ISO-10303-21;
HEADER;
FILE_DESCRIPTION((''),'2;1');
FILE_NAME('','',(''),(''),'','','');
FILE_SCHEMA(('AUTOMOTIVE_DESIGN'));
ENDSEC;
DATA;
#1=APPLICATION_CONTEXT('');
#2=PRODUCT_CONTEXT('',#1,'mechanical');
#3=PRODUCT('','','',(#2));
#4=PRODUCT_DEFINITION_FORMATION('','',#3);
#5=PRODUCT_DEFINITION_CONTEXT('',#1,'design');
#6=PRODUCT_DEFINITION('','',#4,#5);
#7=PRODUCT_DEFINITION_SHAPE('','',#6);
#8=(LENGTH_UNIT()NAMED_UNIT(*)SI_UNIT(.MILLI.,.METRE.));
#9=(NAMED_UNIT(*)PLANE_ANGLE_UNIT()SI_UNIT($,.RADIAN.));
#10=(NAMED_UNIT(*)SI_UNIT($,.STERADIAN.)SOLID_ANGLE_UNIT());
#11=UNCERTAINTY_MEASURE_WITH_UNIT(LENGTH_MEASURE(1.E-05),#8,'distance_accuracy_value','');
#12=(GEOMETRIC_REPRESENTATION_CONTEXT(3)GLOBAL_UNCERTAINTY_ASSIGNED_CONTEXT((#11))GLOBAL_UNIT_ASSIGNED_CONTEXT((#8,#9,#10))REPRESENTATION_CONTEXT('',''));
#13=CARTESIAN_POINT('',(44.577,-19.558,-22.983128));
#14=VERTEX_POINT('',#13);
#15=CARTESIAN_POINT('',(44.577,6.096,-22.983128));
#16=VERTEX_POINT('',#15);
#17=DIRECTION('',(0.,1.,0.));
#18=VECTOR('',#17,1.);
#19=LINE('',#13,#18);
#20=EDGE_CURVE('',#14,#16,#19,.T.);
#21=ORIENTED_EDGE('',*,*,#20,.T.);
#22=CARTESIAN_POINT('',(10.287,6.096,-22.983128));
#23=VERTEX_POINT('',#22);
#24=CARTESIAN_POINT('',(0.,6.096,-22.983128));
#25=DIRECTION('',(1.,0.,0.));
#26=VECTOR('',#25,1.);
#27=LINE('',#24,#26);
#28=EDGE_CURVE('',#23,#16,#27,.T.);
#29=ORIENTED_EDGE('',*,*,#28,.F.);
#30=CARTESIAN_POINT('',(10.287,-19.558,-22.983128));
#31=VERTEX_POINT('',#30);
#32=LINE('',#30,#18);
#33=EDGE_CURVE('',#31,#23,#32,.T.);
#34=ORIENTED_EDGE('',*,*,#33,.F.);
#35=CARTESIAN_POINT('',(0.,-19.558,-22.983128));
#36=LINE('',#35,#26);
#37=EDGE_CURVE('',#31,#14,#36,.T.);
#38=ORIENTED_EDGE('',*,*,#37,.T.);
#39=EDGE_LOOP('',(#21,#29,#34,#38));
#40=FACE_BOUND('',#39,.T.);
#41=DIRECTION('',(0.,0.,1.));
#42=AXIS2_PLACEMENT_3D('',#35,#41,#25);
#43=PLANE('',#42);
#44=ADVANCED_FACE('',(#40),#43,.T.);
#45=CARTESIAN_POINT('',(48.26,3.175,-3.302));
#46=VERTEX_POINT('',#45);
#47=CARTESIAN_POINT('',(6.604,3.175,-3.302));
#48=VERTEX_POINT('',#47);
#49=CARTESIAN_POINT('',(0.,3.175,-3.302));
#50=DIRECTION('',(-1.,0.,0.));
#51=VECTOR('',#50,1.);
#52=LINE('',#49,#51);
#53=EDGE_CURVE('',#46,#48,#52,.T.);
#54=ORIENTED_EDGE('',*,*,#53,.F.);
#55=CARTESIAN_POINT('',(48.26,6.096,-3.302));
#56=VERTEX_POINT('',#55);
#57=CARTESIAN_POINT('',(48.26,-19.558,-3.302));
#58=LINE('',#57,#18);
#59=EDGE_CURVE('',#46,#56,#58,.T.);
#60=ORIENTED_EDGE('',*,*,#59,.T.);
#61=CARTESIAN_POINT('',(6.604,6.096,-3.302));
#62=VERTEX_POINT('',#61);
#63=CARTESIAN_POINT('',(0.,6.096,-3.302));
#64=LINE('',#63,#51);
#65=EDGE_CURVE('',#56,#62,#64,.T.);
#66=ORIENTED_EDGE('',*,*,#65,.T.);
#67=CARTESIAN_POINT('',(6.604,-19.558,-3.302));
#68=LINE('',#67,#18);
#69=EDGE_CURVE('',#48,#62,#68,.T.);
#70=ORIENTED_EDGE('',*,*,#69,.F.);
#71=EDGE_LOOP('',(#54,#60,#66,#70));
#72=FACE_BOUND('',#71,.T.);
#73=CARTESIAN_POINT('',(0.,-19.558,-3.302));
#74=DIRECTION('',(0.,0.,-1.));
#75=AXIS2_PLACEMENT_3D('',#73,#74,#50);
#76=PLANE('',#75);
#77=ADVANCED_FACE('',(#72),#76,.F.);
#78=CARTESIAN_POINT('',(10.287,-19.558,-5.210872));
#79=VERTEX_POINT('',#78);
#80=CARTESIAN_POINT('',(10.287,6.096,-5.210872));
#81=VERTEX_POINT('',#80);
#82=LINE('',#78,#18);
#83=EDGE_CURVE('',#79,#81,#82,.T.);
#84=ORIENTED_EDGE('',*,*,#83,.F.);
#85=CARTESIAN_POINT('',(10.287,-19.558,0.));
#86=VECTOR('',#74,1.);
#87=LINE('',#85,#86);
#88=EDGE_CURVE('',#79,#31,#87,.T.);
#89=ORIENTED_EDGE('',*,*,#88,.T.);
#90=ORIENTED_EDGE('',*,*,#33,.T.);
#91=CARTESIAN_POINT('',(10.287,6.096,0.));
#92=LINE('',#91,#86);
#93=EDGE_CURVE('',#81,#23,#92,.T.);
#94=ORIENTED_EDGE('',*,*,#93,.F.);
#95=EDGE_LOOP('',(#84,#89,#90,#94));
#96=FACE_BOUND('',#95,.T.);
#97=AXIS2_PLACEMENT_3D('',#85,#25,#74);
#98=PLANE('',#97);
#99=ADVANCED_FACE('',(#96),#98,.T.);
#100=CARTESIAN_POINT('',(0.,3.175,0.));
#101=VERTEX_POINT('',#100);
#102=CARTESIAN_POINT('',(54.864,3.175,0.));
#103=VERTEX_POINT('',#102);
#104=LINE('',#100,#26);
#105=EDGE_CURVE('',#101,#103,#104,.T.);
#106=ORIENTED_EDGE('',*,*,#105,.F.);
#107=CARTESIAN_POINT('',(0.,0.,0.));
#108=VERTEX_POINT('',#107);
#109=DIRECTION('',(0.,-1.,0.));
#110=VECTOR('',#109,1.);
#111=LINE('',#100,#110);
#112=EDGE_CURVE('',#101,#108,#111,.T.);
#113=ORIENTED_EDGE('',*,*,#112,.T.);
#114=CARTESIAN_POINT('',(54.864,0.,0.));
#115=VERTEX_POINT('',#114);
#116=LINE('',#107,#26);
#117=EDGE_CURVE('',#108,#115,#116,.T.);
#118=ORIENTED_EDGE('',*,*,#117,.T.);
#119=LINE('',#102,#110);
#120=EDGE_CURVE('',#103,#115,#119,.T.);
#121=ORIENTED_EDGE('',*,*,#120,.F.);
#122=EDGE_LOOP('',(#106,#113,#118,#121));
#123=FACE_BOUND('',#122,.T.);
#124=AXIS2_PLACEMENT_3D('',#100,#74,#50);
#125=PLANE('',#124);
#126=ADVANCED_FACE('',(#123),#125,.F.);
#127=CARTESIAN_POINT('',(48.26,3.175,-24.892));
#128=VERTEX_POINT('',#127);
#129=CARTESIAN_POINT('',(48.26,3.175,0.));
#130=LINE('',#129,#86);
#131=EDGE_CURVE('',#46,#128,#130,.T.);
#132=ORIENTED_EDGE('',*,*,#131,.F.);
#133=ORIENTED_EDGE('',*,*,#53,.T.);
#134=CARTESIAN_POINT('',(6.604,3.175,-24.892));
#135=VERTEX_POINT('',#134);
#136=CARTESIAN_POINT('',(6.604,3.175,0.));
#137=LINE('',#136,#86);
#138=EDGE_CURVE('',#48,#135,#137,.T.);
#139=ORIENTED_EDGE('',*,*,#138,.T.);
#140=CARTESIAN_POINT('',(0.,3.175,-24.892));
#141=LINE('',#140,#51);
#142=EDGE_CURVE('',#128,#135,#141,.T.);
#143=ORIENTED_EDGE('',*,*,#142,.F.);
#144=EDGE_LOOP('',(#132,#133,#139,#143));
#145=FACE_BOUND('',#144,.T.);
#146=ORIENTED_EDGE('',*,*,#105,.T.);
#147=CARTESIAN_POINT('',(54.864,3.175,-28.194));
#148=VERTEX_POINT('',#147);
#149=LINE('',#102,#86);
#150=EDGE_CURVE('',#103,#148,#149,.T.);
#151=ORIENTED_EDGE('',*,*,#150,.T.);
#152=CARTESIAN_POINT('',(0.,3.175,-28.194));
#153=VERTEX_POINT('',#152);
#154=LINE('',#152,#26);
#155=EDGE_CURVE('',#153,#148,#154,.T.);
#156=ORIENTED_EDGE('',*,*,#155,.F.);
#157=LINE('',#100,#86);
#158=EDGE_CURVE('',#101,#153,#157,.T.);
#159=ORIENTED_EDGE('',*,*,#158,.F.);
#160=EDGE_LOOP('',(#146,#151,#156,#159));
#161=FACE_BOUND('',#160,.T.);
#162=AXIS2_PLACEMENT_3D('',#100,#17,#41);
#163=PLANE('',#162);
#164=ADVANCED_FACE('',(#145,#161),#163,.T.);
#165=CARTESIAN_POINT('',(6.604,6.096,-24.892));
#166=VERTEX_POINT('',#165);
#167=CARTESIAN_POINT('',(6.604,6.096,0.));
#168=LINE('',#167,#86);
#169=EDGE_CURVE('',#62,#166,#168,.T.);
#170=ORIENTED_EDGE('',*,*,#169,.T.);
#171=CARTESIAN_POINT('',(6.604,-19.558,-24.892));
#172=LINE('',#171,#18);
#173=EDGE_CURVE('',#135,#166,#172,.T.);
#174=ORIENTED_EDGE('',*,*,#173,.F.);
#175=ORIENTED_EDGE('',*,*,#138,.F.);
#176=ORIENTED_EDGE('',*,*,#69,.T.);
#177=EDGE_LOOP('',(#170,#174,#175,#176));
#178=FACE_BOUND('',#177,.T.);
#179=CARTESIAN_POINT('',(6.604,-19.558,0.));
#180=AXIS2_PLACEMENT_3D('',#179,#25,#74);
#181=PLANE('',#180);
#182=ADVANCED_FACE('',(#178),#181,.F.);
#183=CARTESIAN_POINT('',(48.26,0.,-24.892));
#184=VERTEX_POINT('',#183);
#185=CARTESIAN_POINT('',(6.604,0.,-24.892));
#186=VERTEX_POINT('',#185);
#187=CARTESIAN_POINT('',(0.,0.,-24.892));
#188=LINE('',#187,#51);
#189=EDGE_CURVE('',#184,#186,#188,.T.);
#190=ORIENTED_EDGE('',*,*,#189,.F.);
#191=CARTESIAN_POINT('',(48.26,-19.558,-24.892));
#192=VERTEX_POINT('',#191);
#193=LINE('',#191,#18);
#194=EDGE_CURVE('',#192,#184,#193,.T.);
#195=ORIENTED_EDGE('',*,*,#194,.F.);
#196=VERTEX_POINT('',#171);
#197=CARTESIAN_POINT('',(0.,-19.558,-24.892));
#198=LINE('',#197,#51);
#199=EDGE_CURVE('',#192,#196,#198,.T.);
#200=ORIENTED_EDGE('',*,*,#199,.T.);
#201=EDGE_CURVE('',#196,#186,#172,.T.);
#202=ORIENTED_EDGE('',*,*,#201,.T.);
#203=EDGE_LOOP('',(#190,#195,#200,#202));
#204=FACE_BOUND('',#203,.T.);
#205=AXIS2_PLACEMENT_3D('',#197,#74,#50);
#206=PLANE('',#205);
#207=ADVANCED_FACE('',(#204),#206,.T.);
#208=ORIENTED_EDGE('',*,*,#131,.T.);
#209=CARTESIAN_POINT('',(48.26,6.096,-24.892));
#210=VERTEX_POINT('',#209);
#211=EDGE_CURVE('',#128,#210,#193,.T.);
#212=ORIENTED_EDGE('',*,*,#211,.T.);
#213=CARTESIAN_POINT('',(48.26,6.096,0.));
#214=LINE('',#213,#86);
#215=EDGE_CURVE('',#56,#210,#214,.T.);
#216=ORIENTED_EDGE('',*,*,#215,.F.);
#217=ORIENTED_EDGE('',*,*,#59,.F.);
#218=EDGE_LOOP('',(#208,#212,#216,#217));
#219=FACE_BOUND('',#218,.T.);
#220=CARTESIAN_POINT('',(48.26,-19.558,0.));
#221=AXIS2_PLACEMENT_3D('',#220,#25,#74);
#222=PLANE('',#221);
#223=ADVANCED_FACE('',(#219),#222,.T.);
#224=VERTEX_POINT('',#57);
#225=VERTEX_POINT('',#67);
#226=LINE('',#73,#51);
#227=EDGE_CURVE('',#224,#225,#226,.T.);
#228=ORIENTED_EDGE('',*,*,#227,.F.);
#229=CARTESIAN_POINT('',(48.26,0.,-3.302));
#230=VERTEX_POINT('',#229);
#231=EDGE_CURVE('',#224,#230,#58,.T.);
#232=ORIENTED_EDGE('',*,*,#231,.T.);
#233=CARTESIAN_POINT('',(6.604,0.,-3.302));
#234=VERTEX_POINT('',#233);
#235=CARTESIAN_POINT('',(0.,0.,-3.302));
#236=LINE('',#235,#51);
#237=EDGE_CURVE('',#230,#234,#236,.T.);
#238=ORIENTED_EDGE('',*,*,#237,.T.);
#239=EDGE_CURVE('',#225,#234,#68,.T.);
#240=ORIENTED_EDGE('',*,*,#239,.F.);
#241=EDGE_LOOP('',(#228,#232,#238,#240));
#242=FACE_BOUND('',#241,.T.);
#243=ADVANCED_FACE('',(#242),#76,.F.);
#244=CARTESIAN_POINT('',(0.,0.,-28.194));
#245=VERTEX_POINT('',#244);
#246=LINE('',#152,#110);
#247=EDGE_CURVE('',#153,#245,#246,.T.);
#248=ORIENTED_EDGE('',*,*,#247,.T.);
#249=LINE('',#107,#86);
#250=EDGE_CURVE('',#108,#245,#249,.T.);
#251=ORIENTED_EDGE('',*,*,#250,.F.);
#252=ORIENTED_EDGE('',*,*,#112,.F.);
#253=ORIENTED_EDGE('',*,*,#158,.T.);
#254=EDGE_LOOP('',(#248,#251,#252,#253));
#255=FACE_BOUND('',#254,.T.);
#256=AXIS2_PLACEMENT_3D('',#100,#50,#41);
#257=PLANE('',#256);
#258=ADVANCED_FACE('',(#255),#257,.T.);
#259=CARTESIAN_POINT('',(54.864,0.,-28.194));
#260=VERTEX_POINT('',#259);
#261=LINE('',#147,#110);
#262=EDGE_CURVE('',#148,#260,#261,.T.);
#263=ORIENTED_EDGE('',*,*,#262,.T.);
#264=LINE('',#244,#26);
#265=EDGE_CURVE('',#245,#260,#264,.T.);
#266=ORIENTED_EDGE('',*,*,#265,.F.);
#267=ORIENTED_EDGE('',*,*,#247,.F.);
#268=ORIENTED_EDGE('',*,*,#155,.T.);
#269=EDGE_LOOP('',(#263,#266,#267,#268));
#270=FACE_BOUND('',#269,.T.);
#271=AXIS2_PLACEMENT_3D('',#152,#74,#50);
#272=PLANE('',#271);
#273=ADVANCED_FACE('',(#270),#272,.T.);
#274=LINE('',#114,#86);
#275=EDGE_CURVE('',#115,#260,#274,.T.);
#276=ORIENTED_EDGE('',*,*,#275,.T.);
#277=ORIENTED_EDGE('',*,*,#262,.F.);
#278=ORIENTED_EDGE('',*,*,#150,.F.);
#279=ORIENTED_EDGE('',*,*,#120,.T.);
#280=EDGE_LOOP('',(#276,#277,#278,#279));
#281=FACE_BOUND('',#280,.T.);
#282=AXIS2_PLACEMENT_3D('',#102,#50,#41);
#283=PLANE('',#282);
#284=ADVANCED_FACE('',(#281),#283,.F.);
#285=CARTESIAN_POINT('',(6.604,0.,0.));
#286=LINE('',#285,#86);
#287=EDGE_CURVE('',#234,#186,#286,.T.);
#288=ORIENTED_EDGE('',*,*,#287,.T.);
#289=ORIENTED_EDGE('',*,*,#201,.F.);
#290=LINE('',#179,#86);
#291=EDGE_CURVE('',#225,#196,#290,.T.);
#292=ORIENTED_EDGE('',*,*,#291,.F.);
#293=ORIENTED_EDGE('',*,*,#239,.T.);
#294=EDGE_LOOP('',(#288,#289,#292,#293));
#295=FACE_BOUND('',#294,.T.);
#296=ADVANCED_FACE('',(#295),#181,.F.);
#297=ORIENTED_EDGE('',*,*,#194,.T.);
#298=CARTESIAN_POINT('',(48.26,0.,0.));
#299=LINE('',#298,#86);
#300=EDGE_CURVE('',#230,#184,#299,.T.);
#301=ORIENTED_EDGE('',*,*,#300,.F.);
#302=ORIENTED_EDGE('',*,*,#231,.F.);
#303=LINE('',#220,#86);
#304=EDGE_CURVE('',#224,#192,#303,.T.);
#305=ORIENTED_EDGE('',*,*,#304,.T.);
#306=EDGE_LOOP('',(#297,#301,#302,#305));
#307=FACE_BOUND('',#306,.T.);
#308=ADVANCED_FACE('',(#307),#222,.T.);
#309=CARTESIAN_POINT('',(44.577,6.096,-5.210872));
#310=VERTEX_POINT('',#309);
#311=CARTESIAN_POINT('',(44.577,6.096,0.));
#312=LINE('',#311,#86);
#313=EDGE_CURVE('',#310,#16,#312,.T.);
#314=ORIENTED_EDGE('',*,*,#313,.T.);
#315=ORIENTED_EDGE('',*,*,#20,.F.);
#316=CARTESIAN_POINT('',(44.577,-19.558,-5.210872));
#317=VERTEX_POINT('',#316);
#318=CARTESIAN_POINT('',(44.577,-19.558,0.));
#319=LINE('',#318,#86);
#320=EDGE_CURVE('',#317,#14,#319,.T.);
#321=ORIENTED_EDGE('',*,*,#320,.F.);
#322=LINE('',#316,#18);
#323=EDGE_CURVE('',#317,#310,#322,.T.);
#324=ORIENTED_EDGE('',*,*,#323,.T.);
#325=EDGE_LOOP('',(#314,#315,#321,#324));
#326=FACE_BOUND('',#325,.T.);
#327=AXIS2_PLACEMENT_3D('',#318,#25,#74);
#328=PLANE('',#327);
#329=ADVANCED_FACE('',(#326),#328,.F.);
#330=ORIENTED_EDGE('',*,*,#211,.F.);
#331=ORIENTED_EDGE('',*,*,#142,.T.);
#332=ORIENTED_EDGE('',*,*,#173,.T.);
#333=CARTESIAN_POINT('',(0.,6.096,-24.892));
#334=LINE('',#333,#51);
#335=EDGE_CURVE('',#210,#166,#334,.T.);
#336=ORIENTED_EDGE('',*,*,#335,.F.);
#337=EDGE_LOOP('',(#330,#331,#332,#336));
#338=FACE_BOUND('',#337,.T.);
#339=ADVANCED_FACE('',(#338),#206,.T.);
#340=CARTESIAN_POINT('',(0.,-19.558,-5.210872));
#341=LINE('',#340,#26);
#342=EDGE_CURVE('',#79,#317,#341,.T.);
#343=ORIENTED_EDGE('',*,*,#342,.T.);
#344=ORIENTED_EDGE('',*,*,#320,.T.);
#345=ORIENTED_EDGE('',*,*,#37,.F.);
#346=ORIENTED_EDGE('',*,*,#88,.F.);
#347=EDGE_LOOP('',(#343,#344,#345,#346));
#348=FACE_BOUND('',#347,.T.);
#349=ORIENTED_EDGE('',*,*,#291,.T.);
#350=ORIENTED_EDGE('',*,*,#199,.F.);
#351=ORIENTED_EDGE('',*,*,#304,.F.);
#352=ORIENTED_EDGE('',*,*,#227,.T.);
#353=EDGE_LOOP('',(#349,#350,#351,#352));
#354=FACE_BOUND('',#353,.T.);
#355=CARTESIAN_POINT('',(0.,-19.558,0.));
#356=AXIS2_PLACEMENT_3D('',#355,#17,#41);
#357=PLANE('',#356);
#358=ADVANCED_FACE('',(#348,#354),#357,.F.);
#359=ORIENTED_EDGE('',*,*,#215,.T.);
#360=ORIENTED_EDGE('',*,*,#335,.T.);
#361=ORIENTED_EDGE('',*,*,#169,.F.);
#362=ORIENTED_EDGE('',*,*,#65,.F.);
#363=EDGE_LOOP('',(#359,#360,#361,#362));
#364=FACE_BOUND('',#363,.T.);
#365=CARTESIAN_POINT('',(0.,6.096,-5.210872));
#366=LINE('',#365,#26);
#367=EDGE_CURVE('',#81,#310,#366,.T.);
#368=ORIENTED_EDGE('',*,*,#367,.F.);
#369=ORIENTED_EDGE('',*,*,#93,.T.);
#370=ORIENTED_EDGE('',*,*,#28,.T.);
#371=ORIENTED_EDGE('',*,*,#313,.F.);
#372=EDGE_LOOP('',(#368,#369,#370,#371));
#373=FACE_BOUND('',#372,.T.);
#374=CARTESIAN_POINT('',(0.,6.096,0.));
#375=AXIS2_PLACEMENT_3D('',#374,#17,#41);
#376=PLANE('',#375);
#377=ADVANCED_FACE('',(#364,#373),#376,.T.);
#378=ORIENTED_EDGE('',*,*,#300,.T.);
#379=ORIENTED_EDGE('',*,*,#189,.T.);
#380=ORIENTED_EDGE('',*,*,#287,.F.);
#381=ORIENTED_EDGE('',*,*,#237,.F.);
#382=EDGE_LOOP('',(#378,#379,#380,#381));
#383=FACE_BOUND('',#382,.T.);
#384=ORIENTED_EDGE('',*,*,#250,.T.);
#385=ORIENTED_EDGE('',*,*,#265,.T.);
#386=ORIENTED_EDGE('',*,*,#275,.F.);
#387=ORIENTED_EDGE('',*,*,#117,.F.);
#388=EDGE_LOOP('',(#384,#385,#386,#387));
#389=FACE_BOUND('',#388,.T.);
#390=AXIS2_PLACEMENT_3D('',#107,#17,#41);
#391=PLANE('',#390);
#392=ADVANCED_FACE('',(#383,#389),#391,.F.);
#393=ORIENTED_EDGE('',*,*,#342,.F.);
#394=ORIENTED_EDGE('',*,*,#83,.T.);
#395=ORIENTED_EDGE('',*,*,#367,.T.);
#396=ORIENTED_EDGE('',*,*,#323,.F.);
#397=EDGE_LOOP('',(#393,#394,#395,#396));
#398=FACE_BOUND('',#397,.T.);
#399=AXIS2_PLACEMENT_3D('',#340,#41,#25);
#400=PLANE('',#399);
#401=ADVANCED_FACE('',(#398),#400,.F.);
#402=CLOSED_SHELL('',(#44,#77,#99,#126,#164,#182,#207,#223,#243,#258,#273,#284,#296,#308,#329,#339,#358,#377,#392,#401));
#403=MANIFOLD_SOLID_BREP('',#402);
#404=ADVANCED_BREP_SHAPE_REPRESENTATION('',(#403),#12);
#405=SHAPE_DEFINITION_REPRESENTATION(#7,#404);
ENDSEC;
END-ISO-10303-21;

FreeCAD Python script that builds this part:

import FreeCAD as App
import Part
import Sketcher
Q = App.Units.Quantity

doc = App.newDocument("Part")
body = doc.addObject("PartDesign::Body", "Body")

# Sketch on XZ plane
sketch1 = body.newObject("Sketcher::SketchObject", "Sketch")
sketch1.AttachmentSupport = (doc.getObject("XZ_Plane"), [""])
sketch1.MapMode = "FlatFace"
sketch1.addGeometry([
    Part.LineSegment(App.Vector(0, -28, 0), App.Vector(0, 0, 0)),  # 0
    Part.LineSegment(App.Vector(0, 0, 0), App.Vector(55, 0, 0)),  # 1
    Part.LineSegment(App.Vector(55, 0, 0), App.Vector(55, -28, 0)),  # 2
    Part.LineSegment(App.Vector(55, -28, 0), App.Vector(0, -28, 0)),  # 3
    Part.LineSegment(App.Vector(48, -3, 0), App.Vector(7, -3, 0)),  # 4
    Part.LineSegment(App.Vector(7, -3, 0), App.Vector(7, -25, 0)),  # 5
    Part.LineSegment(App.Vector(7, -25, 0), App.Vector(48, -25, 0)),  # 6
    Part.LineSegment(App.Vector(48, -25, 0), App.Vector(48, -3, 0)),  # 7
], False)
sketch1.addConstraint([
    Sketcher.Constraint("Coincident", 0, 2, 1, 1),
    Sketcher.Constraint("Coincident", 1, 2, 2, 1),
    Sketcher.Constraint("Coincident", 2, 2, 3, 1),
    Sketcher.Constraint("Coincident", 3, 2, 0, 1),
    Sketcher.Constraint("Coincident", 4, 2, 5, 1),
    Sketcher.Constraint("Coincident", 5, 2, 6, 1),
    Sketcher.Constraint("Coincident", 6, 2, 7, 1),
    Sketcher.Constraint("Coincident", 7, 2, 4, 1),
    Sketcher.Constraint("Vertical", 0),
    Sketcher.Constraint("Horizontal", 1),
    Sketcher.Constraint("Vertical", 2),
    Sketcher.Constraint("Horizontal", 3),
    Sketcher.Constraint("Horizontal", 4),
    Sketcher.Constraint("Vertical", 5),
    Sketcher.Constraint("Horizontal", 6),
    Sketcher.Constraint("Vertical", 7),
    Sketcher.Constraint("Coincident", 0, 2, -1, 1),
    Sketcher.Constraint("DistanceX", 1, 1, 1, 2, Q("2.16 in")),
    Sketcher.Constraint("DistanceX", 4, 2, 4, 1, Q("1.64 in")),
    Sketcher.Constraint("DistanceY", 0, 1, 0, 2, Q("1.11 in")),
    Sketcher.Constraint("DistanceY", 5, 2, 5, 1, Q("0.85 in")),
    Sketcher.Constraint("DistanceX", -1, 1, 6, 2, Q("1.9 in")),
    Sketcher.Constraint("DistanceY", 4, 2, -1, 1, Q("0.13 in")),
])
pad1 = body.newObject("PartDesign::Pad", "Pad")
pad1.Profile = sketch1
pad1.Length = Q("0.125 in")
pad1.Reversed = True

# Sketch on XZ plane
sketch2 = body.newObject("Sketcher::SketchObject", "Sketch001")
sketch2.AttachmentSupport = (doc.getObject("XZ_Plane"), [""])
sketch2.MapMode = "FlatFace"
sketch2.addGeometry([
    Part.LineSegment(App.Vector(7, -25, 0), App.Vector(7, -3, 0)),  # 0
    Part.LineSegment(App.Vector(7, -3, 0), App.Vector(48, -3, 0)),  # 1
    Part.LineSegment(App.Vector(48, -3, 0), App.Vector(48, -25, 0)),  # 2
    Part.LineSegment(App.Vector(48, -25, 0), App.Vector(7, -25, 0)),  # 3
    Part.LineSegment(App.Vector(45, -5, 0), App.Vector(10, -5, 0)),  # 4
    Part.LineSegment(App.Vector(10, -5, 0), App.Vector(10, -23, 0)),  # 5
    Part.LineSegment(App.Vector(10, -23, 0), App.Vector(45, -23, 0)),  # 6
    Part.LineSegment(App.Vector(45, -23, 0), App.Vector(45, -5, 0)),  # 7
], False)
sketch2.addConstraint([
    Sketcher.Constraint("Coincident", 0, 2, 1, 1),
    Sketcher.Constraint("Coincident", 1, 2, 2, 1),
    Sketcher.Constraint("Coincident", 2, 2, 3, 1),
    Sketcher.Constraint("Coincident", 3, 2, 0, 1),
    Sketcher.Constraint("Coincident", 4, 2, 5, 1),
    Sketcher.Constraint("Coincident", 5, 2, 6, 1),
    Sketcher.Constraint("Coincident", 6, 2, 7, 1),
    Sketcher.Constraint("Coincident", 7, 2, 4, 1),
    Sketcher.Constraint("Vertical", 0),
    Sketcher.Constraint("Horizontal", 1),
    Sketcher.Constraint("Vertical", 2),
    Sketcher.Constraint("Horizontal", 3),
    Sketcher.Constraint("Horizontal", 4),
    Sketcher.Constraint("Vertical", 5),
    Sketcher.Constraint("Horizontal", 6),
    Sketcher.Constraint("Vertical", 7),
    Sketcher.Constraint("DistanceX", 1, 1, 1, 2, Q("1.64 in")),
    Sketcher.Constraint("DistanceX", 4, 2, 4, 1, Q("1.35 in")),
    Sketcher.Constraint("DistanceY", 0, 1, 0, 2, Q("0.85 in")),
    Sketcher.Constraint("DistanceX", -1, 1, 1, 2, Q("1.9 in")),
    Sketcher.Constraint("DistanceY", 0, 2, -1, 1, Q("0.13 in")),
    Sketcher.Constraint("DistanceX", -1, 1, 4, 2, Q("0.405 in")),
    Sketcher.Constraint("DistanceY", 5, 2, 5, 1, 17.772256),
    Sketcher.Constraint("DistanceY", 4, 2, -1, 1, 5.210872),
])
pad2 = body.newObject("PartDesign::Pad", "Pad001")
pad2.Profile = sketch2
pad2.Type = "TwoLengths"
pad2.Length = Q("0.24 in")
pad2.Length2 = Q("0.77 in")
pad2.Reversed = True

doc.recompute()
